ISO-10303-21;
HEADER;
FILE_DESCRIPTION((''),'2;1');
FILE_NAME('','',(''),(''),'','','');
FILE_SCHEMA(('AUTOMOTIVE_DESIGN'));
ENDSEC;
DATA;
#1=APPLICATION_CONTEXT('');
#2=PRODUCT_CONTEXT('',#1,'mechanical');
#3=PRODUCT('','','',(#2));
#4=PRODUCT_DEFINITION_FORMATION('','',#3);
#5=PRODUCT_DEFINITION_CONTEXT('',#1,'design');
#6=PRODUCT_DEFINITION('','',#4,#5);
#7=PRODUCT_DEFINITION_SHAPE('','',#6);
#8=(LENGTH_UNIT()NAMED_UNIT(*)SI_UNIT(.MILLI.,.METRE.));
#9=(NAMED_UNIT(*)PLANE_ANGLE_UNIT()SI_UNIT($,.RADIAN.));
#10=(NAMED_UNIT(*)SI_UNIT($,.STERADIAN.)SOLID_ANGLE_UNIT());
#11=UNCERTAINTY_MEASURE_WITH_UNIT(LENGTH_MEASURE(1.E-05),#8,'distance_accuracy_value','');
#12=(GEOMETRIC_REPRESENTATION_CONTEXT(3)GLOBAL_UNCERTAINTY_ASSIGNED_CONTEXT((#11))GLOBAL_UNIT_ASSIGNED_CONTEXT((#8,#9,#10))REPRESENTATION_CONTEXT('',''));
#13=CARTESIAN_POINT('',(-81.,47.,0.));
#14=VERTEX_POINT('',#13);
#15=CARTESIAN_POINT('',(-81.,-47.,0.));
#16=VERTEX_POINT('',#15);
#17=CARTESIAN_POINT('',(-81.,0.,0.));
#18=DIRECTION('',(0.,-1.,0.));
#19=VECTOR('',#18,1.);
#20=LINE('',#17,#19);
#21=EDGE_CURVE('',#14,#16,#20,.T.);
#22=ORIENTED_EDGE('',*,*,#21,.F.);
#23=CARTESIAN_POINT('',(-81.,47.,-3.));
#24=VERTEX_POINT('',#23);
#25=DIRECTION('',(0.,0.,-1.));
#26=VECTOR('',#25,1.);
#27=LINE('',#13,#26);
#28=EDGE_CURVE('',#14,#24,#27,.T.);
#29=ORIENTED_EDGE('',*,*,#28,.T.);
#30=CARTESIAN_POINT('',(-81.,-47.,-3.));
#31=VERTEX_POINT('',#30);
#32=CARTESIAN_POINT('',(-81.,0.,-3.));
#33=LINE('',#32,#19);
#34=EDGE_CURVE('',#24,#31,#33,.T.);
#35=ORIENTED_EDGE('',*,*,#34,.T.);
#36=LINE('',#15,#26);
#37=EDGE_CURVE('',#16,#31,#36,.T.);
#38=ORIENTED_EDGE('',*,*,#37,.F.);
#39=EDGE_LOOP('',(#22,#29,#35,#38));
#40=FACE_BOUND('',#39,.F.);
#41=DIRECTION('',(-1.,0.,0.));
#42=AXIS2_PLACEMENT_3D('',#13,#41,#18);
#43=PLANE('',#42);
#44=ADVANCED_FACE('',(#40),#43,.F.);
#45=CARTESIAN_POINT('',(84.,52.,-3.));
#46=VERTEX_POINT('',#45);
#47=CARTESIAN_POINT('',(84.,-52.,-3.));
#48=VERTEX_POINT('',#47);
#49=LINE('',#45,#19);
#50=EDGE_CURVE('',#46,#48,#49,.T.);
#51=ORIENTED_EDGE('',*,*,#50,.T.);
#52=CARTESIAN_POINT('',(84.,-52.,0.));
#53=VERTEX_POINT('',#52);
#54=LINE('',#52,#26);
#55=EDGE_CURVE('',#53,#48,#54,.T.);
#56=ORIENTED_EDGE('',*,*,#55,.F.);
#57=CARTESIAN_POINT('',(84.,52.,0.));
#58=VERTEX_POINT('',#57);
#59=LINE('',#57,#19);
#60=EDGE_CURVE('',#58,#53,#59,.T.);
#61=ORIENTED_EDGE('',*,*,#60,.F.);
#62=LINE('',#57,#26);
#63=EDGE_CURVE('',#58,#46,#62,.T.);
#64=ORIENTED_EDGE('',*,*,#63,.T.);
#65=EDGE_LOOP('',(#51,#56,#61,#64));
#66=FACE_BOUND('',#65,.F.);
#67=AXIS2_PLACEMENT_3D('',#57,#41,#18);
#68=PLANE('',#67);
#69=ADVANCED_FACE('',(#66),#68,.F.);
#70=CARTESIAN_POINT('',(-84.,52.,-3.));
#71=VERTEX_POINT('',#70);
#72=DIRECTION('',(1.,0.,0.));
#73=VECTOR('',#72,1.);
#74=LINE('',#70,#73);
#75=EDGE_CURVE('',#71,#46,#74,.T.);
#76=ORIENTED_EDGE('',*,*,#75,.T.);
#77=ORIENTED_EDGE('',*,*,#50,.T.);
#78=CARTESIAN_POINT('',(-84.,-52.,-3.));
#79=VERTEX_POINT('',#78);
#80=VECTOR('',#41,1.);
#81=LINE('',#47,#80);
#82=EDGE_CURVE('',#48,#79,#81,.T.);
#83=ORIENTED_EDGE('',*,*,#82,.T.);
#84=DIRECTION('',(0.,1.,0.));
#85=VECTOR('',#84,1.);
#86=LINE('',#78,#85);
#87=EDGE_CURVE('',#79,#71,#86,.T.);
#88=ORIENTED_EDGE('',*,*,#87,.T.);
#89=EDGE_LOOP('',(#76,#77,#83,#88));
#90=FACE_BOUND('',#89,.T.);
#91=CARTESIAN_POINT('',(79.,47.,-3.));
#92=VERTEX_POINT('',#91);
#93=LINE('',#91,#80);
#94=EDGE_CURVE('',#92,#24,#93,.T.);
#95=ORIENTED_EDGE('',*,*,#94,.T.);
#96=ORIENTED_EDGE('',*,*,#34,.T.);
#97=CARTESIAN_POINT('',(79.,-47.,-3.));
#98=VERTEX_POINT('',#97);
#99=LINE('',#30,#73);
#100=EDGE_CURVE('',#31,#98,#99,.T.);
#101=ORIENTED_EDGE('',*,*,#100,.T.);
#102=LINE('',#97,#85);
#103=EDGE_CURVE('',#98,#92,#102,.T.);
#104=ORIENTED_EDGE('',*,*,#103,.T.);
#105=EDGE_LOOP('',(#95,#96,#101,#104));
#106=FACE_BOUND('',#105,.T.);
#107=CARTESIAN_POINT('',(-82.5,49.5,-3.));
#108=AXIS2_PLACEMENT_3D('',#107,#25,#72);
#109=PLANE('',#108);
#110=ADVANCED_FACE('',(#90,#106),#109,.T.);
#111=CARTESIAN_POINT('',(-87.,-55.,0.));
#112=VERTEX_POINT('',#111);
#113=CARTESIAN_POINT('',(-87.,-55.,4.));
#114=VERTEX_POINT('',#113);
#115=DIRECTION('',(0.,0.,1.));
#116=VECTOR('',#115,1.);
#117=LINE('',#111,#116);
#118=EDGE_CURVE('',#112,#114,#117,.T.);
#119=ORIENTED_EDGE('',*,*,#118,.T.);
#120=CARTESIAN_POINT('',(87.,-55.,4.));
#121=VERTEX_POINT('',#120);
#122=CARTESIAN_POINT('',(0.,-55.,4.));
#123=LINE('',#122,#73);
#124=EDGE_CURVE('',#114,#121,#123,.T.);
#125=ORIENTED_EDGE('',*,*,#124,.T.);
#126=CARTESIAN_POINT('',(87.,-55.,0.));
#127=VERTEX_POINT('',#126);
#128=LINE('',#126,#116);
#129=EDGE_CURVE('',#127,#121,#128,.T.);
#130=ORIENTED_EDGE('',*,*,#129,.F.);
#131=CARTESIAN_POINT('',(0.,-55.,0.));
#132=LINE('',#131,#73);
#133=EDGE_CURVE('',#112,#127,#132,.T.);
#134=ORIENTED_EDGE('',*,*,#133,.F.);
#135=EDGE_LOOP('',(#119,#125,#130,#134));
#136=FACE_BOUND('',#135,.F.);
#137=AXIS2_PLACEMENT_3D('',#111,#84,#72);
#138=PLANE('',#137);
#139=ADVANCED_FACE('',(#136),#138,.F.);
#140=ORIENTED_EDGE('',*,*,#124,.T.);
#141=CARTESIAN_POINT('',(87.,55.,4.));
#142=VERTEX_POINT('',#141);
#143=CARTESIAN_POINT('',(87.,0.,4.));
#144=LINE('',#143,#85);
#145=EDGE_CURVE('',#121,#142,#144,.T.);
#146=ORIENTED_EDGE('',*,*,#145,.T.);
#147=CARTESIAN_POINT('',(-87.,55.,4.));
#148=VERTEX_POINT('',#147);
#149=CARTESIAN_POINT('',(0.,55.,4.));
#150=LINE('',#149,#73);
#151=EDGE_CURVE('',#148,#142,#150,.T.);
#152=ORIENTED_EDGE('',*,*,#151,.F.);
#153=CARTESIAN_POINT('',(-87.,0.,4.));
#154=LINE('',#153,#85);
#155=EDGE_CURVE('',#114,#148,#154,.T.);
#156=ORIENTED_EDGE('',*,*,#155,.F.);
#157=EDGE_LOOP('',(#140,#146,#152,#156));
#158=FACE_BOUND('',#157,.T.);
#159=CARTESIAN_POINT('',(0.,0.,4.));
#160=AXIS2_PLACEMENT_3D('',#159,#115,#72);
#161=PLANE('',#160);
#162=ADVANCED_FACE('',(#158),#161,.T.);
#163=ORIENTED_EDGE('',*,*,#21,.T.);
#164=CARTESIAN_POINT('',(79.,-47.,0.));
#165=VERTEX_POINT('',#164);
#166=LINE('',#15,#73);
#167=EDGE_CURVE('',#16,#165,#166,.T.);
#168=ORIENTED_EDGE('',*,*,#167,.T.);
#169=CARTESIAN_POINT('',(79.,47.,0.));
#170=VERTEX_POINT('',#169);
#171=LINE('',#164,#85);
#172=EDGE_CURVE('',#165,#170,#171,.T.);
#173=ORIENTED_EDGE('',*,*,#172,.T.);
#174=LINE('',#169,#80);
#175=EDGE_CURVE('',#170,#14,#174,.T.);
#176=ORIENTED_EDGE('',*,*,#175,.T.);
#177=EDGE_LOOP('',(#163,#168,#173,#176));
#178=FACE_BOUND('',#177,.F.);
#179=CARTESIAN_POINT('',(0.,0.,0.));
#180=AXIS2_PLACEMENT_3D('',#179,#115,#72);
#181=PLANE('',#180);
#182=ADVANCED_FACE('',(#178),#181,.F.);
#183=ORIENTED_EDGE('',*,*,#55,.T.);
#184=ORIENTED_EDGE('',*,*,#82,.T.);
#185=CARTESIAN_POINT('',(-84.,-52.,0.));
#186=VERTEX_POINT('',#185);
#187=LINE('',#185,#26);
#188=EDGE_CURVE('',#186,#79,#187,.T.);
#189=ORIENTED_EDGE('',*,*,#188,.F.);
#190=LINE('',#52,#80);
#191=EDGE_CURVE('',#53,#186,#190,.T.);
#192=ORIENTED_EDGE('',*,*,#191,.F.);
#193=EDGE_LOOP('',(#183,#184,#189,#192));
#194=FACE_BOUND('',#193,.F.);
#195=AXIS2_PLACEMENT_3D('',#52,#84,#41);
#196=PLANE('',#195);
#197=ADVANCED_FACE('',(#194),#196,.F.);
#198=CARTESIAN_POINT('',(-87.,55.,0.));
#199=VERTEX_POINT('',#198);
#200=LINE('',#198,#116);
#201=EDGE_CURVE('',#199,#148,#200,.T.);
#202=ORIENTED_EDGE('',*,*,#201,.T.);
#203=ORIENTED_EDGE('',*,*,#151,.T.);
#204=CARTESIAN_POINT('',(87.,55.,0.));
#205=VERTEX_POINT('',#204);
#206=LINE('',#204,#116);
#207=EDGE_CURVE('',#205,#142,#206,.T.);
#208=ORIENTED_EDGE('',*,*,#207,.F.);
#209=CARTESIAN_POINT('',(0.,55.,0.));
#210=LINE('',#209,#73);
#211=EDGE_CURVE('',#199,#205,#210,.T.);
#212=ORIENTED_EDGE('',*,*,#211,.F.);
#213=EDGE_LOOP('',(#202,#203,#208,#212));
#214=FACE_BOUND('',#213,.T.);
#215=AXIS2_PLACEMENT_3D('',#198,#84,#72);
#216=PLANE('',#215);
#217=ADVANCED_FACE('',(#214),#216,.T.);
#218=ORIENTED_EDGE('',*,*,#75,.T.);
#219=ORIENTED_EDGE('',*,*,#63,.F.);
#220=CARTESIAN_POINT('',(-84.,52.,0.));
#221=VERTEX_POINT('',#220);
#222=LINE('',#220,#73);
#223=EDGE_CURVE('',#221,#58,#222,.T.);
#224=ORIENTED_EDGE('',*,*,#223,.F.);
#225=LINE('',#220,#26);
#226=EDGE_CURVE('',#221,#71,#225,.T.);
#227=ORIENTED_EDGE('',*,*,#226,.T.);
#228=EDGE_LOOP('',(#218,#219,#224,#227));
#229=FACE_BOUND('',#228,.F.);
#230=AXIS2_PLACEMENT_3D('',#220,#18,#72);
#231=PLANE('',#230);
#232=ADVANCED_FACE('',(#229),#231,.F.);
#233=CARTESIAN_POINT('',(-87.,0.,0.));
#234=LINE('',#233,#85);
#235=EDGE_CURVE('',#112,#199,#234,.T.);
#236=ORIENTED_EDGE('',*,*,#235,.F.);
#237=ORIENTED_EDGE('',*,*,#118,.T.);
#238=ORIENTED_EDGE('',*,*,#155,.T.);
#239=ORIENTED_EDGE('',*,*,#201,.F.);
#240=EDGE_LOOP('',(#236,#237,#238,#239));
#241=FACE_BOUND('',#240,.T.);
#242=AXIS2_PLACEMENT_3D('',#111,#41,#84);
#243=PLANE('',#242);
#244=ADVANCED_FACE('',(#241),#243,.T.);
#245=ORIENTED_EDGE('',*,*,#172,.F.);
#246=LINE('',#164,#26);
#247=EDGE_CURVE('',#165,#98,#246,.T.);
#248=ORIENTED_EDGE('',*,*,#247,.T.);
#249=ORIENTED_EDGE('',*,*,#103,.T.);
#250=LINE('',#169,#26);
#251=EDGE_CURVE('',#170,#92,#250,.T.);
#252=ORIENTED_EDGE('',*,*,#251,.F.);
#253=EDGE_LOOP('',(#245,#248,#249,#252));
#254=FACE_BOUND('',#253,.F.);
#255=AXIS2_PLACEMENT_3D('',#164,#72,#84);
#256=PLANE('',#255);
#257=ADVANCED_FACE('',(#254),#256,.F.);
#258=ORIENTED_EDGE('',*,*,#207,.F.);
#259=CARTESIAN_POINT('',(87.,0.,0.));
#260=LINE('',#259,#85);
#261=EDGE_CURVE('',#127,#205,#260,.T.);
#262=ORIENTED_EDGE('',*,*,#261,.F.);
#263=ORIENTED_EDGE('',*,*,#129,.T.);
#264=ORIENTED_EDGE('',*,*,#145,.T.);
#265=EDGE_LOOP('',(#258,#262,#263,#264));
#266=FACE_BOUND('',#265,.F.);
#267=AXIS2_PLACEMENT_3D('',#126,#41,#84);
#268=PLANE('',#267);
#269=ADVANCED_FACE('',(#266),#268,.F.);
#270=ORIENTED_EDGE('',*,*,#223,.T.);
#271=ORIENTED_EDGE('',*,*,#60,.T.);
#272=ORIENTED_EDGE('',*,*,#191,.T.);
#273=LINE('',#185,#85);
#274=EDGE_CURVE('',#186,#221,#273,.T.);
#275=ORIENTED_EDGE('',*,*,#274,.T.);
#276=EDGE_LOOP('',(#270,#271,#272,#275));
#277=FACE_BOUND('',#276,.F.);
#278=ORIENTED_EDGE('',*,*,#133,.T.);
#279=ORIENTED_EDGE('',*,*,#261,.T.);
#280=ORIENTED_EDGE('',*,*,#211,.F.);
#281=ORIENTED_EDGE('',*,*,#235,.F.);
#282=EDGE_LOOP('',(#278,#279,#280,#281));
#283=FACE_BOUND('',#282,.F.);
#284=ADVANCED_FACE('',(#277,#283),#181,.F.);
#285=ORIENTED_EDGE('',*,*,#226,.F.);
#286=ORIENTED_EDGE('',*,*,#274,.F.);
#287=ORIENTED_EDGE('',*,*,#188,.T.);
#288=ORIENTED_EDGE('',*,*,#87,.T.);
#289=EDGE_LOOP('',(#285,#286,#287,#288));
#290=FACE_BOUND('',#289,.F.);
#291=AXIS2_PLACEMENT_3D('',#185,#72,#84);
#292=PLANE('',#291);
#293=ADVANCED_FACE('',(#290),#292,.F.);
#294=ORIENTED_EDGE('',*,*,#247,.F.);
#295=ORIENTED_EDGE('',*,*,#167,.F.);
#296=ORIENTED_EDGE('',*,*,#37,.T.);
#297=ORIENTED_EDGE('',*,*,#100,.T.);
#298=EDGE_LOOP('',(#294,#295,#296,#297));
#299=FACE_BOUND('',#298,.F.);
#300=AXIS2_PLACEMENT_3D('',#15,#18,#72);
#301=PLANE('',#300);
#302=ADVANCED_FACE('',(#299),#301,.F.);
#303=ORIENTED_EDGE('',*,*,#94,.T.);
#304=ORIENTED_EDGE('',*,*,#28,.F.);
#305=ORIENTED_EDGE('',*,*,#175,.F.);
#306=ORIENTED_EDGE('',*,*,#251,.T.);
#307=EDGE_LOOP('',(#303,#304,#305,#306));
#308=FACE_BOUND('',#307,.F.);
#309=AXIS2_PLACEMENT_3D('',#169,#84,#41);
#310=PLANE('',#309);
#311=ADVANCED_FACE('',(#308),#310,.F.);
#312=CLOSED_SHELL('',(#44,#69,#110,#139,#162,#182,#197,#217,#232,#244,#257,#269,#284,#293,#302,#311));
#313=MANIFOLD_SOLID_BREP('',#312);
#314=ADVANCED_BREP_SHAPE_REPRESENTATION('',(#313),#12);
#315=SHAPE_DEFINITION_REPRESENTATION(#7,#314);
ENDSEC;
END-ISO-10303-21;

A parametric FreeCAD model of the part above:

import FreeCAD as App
import Part
import Sketcher

doc = App.newDocument("Part")
body = doc.addObject("PartDesign::Body", "Body")

# Sketch on XY plane
sketch1 = doc.addObject("Sketcher::SketchObject", "Sketch")
body.addObject(sketch1)
sketch1.AttachmentSupport = (doc.XY_Plane, [""])
sketch1.MapMode = "FlatFace"
sketch1.addGeometry(Part.LineSegment(App.Vector(-87, 55, 0), App.Vector(-87, -55, 0)), False)
sketch1.addGeometry(Part.LineSegment(App.Vector(-87, -55, 0), App.Vector(87, -55, 0)), False)
sketch1.addGeometry(Part.LineSegment(App.Vector(87, -55, 0), App.Vector(87, 55, 0)), False)
sketch1.addGeometry(Part.LineSegment(App.Vector(87, 55, 0), App.Vector(-87, 55, 0)), False)
sketch1.addConstraint(Sketcher.Constraint("Coincident", 0, 2, 1, 1))
sketch1.addConstraint(Sketcher.Constraint("Coincident", 1, 2, 2, 1))
sketch1.addConstraint(Sketcher.Constraint("Coincident", 2, 2, 3, 1))
sketch1.addConstraint(Sketcher.Constraint("Coincident", 3, 2, 0, 1))
sketch1.addConstraint(Sketcher.Constraint("Vertical", 0))
sketch1.addConstraint(Sketcher.Constraint("Horizontal", 1))
sketch1.addConstraint(Sketcher.Constraint("Vertical", 2))
sketch1.addConstraint(Sketcher.Constraint("Horizontal", 3))
sketch1.addConstraint(Sketcher.Constraint("Symmetric", 0, 2, 2, 2, -1, 1))
sketch1.addConstraint(Sketcher.Constraint("DistanceX", 1, 1, 1, 2, 174.0))
sketch1.addConstraint(Sketcher.Constraint("DistanceY", 0, 2, 0, 1, 110.0))
pad1 = doc.addObject("PartDesign::Pad", "Pad")
body.addObject(pad1)
pad1.Profile = sketch1
pad1.Length = 4

# Sketch on XY plane
sketch2 = doc.addObject("Sketcher::SketchObject", "Sketch001")
body.addObject(sketch2)
sketch2.AttachmentSupport = (doc.XY_Plane, [""])
sketch2.MapMode = "FlatFace"
sketch2.addGeometry(Part.LineSegment(App.Vector(84, -52, 0), App.Vector(-84, -52, 0)), False)
sketch2.addGeometry(Part.LineSegment(App.Vector(-84, -52, 0), App.Vector(-84, 52, 0)), False)
sketch2.addGeometry(Part.LineSegment(App.Vector(-84, 52, 0), App.Vector(84, 52, 0)), False)
sketch2.addGeometry(Part.LineSegment(App.Vector(84, 52, 0), App.Vector(84, -52, 0)), False)
sketch2.addGeometry(Part.LineSegment(App.Vector(-81, 47, 0), App.Vector(-81, -47, 0)), False)
sketch2.addGeometry(Part.LineSegment(App.Vector(-81, -47, 0), App.Vector(79, -47, 0)), False)
sketch2.addGeometry(Part.LineSegment(App.Vector(79, -47, 0), App.Vector(79, 47, 0)), False)
sketch2.addGeometry(Part.LineSegment(App.Vector(79, 47, 0), App.Vector(-81, 47, 0)), False)
sketch2.addConstraint(Sketcher.Constraint("Coincident", 0, 2, 1, 1))
sketch2.addConstraint(Sketcher.Constraint("Coincident", 1, 2, 2, 1))
sketch2.addConstraint(Sketcher.Constraint("Coincident", 2, 2, 3, 1))
sketch2.addConstraint(Sketcher.Constraint("Coincident", 3, 2, 0, 1))
sketch2.addConstraint(Sketcher.Constraint("Coincident", 4, 2, 5, 1))
sketch2.addConstraint(Sketcher.Constraint("Coincident", 5, 2, 6, 1))
sketch2.addConstraint(Sketcher.Constraint("Coincident", 6, 2, 7, 1))
sketch2.addConstraint(Sketcher.Constraint("Coincident", 7, 2, 4, 1))
sketch2.addConstraint(Sketcher.Constraint("Horizontal", 0))
sketch2.addConstraint(Sketcher.Constraint("Vertical", 1))
sketch2.addConstraint(Sketcher.Constraint("Horizontal", 2))
sketch2.addConstraint(Sketcher.Constraint("Vertical", 3))
sketch2.addConstraint(Sketcher.Constraint("Vertical", 4))
sketch2.addConstraint(Sketcher.Constraint("Horizontal", 5))
sketch2.addConstraint(Sketcher.Constraint("Vertical", 6))
sketch2.addConstraint(Sketcher.Constraint("Horizontal", 7))
sketch2.addConstraint(Sketcher.Constraint("Symmetric", 0, 2, 2, 2, -1, 1))
sketch2.addConstraint(Sketcher.Constraint("DistanceX", 0, 2, 0, 1, 168.0))
sketch2.addConstraint(Sketcher.Constraint("DistanceX", 5, 1, 5, 2, 160.0))
sketch2.addConstraint(Sketcher.Constraint("DistanceY", 1, 1, 1, 2, 104.0))
sketch2.addConstraint(Sketcher.Constraint("DistanceY", 4, 2, 4, 1, 94.0))
sketch2.addConstraint(Sketcher.Constraint("DistanceX", 4, 2, -1, 1, 81.0))
sketch2.addConstraint(Sketcher.Constraint("DistanceY", 4, 2, -1, 1, 47.0))
pad2 = doc.addObject("PartDesign::Pad", "Pad001")
body.addObject(pad2)
pad2.Profile = sketch2
pad2.Length = 3
pad2.Reversed = True

doc.recompute()
